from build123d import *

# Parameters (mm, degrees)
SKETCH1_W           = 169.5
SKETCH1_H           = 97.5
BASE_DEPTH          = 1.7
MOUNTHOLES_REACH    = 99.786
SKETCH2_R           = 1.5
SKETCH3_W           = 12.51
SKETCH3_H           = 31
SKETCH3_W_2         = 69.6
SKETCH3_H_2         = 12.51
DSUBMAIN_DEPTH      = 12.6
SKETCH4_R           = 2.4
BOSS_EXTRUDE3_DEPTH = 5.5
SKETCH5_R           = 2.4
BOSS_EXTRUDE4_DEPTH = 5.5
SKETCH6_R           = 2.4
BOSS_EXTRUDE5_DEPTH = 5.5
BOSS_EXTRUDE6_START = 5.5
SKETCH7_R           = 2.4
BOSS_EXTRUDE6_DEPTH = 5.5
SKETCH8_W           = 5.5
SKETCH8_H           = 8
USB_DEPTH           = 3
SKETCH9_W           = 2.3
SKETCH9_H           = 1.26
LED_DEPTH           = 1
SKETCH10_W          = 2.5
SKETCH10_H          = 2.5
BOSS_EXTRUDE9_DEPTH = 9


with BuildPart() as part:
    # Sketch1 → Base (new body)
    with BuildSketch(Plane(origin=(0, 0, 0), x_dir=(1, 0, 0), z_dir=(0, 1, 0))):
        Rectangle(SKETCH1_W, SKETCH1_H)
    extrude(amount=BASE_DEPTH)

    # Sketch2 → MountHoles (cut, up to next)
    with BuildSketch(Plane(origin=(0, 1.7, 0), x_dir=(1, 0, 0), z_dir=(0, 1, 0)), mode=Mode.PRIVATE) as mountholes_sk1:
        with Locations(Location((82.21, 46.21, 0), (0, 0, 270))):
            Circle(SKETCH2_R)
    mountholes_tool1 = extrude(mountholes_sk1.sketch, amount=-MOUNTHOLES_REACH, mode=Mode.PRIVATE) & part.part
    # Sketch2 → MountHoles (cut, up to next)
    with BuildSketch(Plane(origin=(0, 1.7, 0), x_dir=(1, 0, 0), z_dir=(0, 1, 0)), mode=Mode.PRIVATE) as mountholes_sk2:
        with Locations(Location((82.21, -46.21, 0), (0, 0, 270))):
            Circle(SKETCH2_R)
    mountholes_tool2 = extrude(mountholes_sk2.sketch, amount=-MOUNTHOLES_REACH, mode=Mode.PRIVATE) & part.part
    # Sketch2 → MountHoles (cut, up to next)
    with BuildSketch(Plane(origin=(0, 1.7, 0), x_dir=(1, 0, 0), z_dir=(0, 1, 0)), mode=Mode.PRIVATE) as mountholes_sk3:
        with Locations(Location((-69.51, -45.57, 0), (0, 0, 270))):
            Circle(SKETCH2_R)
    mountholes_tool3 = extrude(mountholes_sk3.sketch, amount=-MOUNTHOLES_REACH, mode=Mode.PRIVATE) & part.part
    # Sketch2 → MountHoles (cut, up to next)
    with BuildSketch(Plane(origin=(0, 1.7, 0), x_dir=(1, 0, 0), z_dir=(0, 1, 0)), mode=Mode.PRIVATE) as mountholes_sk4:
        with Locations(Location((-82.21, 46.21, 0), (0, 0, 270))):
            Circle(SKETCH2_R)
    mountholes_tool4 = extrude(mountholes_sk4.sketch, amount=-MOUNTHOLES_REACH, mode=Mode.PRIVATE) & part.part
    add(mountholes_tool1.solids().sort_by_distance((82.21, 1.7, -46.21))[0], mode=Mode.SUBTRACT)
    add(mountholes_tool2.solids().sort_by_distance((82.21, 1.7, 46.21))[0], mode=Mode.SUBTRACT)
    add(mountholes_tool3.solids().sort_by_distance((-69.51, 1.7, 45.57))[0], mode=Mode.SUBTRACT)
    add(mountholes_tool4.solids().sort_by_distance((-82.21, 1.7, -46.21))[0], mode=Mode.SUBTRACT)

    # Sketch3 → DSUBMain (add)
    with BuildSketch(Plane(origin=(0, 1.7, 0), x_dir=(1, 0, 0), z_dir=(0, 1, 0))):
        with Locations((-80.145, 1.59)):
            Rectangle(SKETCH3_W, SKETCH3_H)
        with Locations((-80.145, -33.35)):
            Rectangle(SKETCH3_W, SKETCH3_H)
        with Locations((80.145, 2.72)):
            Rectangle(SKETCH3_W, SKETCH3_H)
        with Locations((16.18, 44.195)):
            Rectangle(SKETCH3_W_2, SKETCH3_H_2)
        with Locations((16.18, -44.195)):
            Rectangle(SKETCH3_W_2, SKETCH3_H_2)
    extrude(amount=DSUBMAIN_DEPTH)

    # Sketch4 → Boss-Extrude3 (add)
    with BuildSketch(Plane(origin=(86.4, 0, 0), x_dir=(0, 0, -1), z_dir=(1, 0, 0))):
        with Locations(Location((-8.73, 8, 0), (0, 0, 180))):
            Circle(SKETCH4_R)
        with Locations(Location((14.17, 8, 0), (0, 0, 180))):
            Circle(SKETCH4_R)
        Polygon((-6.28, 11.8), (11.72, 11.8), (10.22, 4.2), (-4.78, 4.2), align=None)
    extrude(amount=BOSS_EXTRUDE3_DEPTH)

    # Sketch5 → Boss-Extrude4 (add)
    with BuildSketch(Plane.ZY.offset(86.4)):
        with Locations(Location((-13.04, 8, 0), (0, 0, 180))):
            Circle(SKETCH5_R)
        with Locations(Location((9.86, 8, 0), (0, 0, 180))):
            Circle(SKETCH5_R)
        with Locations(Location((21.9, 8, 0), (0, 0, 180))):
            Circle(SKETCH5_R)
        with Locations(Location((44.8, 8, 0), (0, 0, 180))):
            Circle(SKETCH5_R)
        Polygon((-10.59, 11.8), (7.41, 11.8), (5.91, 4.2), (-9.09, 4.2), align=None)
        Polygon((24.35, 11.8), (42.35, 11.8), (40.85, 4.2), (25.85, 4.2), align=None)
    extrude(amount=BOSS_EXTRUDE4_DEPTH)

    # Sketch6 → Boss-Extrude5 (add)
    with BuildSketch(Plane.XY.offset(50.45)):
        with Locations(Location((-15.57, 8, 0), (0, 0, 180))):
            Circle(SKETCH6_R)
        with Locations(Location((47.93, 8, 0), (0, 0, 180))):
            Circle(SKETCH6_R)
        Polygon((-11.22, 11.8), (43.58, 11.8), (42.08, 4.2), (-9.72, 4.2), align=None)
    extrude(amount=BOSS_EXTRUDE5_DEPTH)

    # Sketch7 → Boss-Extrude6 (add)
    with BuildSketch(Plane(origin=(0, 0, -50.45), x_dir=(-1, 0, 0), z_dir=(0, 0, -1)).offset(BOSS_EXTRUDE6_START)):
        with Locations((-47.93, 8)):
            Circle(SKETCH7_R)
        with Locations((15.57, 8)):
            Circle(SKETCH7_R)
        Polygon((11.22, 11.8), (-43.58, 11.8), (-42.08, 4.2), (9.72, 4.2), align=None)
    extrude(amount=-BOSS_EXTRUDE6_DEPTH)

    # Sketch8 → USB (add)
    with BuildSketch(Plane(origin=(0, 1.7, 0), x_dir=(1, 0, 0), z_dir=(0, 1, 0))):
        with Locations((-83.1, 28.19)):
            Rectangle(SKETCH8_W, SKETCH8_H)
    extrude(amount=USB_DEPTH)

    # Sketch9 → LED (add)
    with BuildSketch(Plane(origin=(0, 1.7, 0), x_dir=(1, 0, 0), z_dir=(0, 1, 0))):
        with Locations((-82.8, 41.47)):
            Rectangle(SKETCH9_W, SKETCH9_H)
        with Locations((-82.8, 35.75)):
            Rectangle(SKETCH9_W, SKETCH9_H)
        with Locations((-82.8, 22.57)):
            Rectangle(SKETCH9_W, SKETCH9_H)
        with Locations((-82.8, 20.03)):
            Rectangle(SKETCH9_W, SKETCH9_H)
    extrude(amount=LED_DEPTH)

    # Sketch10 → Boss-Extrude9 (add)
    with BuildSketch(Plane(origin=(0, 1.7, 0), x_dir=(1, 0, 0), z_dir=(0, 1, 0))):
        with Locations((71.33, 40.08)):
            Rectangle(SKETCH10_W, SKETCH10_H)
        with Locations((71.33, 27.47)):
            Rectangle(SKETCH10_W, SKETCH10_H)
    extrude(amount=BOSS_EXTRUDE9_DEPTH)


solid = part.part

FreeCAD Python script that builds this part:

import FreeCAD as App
import Part
import Sketcher
Q = App.Units.Quantity

doc = App.newDocument("Part")
body = doc.addObject("PartDesign::Body", "Body")

sketch1 = body.newObject("Sketcher::SketchObject", "Sketch")
sketch1.AttachmentSupport = (doc.getObject("XZ_Plane"), [""])
sketch1.MapMode = "FlatFace"
sketch1.addGeometry(Part.LineSegment(App.Vector(-85, -49, 0), App.Vector(-85, 49, 0)), False)
sketch1.addGeometry(Part.LineSegment(App.Vector(-85, 49, 0), App.Vector(85, 49, 0)), False)
sketch1.addGeometry(Part.LineSegment(App.Vector(85, 49, 0), App.Vector(85, -49, 0)), False)
sketch1.addGeometry(Part.LineSegment(App.Vector(85, -49, 0), App.Vector(-85, -49, 0)), False)
sketch1.addConstraint(Sketcher.Constraint("Coincident", 0, 2, 1, 1))
sketch1.addConstraint(Sketcher.Constraint("Coincident", 1, 2, 2, 1))
sketch1.addConstraint(Sketcher.Constraint("Coincident", 2, 2, 3, 1))
sketch1.addConstraint(Sketcher.Constraint("Coincident", 3, 2, 0, 1))
sketch1.addConstraint(Sketcher.Constraint("Vertical", 0))
sketch1.addConstraint(Sketcher.Constraint("Horizontal", 1))
sketch1.addConstraint(Sketcher.Constraint("Vertical", 2))
sketch1.addConstraint(Sketcher.Constraint("Horizontal", 3))
sketch1.addConstraint(Sketcher.Constraint("Symmetric", 0, 2, 2, 2, -1, 1))
sketch1.addConstraint(Sketcher.Constraint("DistanceX", 1, 1, 1, 2, Q("169.5 mm")))
sketch1.addConstraint(Sketcher.Constraint("DistanceY", 0, 1, 0, 2, Q("97.5 mm")))
pad1 = body.newObject("PartDesign::Pad", "Pad")
pad1.Profile = sketch1
pad1.Length = 1.7
pad1.Reversed = True

sketch2 = body.newObject("Sketcher::SketchObject", "Sketch001")
sketch2.AttachmentSupport = (doc.getObject("XZ_Plane"), [""])
sketch2.MapMode = "FlatFace"
sketch2.AttachmentOffset = App.Placement(App.Vector(0, 0, -1.7), App.Rotation())
sketch2.addGeometry(Part.Circle(App.Vector(82.2, -46.2, 0), App.Vector(0, 0, 1), 1.5), False)
sketch2.addConstraint(Sketcher.Constraint("Diameter", 0, Q("3 mm")))
sketch2.addConstraint(Sketcher.Constraint("DistanceX", -1, 1, 0, 3, Q("82.21 mm")))
sketch2.addConstraint(Sketcher.Constraint("DistanceY", 0, 3, -1, 1, Q("46.21 mm")))
pocket1 = body.newObject("PartDesign::Pocket", "Pocket")
pocket1.Profile = sketch2
pocket1.Type = "UpToFirst"
pocket1.Reversed = True

sketch3 = body.newObject("Sketcher::SketchObject", "Sketch002")
sketch3.AttachmentSupport = (doc.getObject("XZ_Plane"), [""])
sketch3.MapMode = "FlatFace"
sketch3.AttachmentOffset = App.Placement(App.Vector(0, 0, -1.7), App.Rotation())
sketch3.addGeometry(Part.Circle(App.Vector(82.2, 46.2, 0), App.Vector(0, 0, 1), 1.5), False)
sketch3.addConstraint(Sketcher.Constraint("Diameter", 0, Q("3 mm")))
sketch3.addConstraint(Sketcher.Constraint("DistanceX", -1, 1, 0, 3, Q("82.21 mm")))
sketch3.addConstraint(Sketcher.Constraint("DistanceY", -1, 1, 0, 3, Q("46.21 mm")))
pocket2 = body.newObject("PartDesign::Pocket", "Pocket001")
pocket2.Profile = sketch3
pocket2.Type = "UpToFirst"
pocket2.Reversed = True

sketch4 = body.newObject("Sketcher::SketchObject", "Sketch003")
sketch4.AttachmentSupport = (doc.getObject("XZ_Plane"), [""])
sketch4.MapMode = "FlatFace"
sketch4.AttachmentOffset = App.Placement(App.Vector(0, 0, -1.7), App.Rotation())
sketch4.addGeometry(Part.Circle(App.Vector(-69.5, 45.6, 0), App.Vector(0, 0, 1), 1.5), False)
sketch4.addConstraint(Sketcher.Constraint("Diameter", 0, Q("3 mm")))
sketch4.addConstraint(Sketcher.Constraint("DistanceX", 0, 3, -1, 1, Q("69.51 mm")))
sketch4.addConstraint(Sketcher.Constraint("DistanceY", -1, 1, 0, 3, Q("45.57 mm")))
pocket3 = body.newObject("PartDesign::Pocket", "Pocket002")
pocket3.Profile = sketch4
pocket3.Type = "UpToFirst"
pocket3.Reversed = True

sketch5 = body.newObject("Sketcher::SketchObject", "Sketch004")
sketch5.AttachmentSupport = (doc.getObject("XZ_Plane"), [""])
sketch5.MapMode = "FlatFace"
sketch5.AttachmentOffset = App.Placement(App.Vector(0, 0, -1.7), App.Rotation())
sketch5.addGeometry(Part.Circle(App.Vector(-82.2, -46.2, 0), App.Vector(0, 0, 1), 1.5), False)
sketch5.addConstraint(Sketcher.Constraint("Diameter", 0, Q("3 mm")))
sketch5.addConstraint(Sketcher.Constraint("DistanceX", 0, 3, -1, 1, Q("82.21 mm")))
sketch5.addConstraint(Sketcher.Constraint("DistanceY", 0, 3, -1, 1, Q("46.21 mm")))
pocket4 = body.newObject("PartDesign::Pocket", "Pocket003")
pocket4.Profile = sketch5
pocket4.Type = "UpToFirst"
pocket4.Reversed = True

sketch6 = body.newObject("Sketcher::SketchObject", "Sketch005")
sketch6.AttachmentSupport = (doc.getObject("XZ_Plane"), [""])
sketch6.MapMode = "FlatFace"
sketch6.AttachmentOffset = App.Placement(App.Vector(0, 0, -1.7), App.Rotation())
sketch6.addGeometry(Part.LineSegment(App.Vector(-86, -17, 0), App.Vector(-86, 14, 0)), False)
sketch6.addGeometry(Part.LineSegment(App.Vector(-86, 14, 0), App.Vector(-74, 14, 0)), False)
sketch6.addGeometry(Part.LineSegment(App.Vector(-74, 14, 0), App.Vector(-74, -17, 0)), False)
sketch6.addGeometry(Part.LineSegment(App.Vector(-74, -17, 0), App.Vector(-86, -17, 0)), False)
sketch6.addGeometry(Part.LineSegment(App.Vector(-86, 18, 0), App.Vector(-86, 49, 0)), False)
sketch6.addGeometry(Part.LineSegment(App.Vector(-86, 49, 0), App.Vector(-74, 49, 0)), False)
sketch6.addGeometry(Part.LineSegment(App.Vector(-74, 49, 0), App.Vector(-74, 18, 0)), False)
sketch6.addGeometry(Part.LineSegment(App.Vector(-74, 18, 0), App.Vector(-86, 18, 0)), False)
sketch6.addGeometry(Part.LineSegment(App.Vector(74, -18, 0), App.Vector(74, 13, 0)), False)
sketch6.addGeometry(Part.LineSegment(App.Vector(74, 13, 0), App.Vector(86, 13, 0)), False)
sketch6.addGeometry(Part.LineSegment(App.Vector(86, 13, 0), App.Vector(86, -18, 0)), False)
sketch6.addGeometry(Part.LineSegment(App.Vector(86, -18, 0), App.Vector(74, -18, 0)), False)
sketch6.addGeometry(Part.LineSegment(App.Vector(-19, -50, 0), App.Vector(-19, -38, 0)), False)
sketch6.addGeometry(Part.LineSegment(App.Vector(-19, -38, 0), App.Vector(51, -38, 0)), False)
sketch6.addGeometry(Part.LineSegment(App.Vector(51, -38, 0), App.Vector(51, -50, 0)), False)
sketch6.addGeometry(Part.LineSegment(App.Vector(51, -50, 0), App.Vector(-19, -50, 0)), False)
sketch6.addGeometry(Part.LineSegment(App.Vector(-19, 38, 0), App.Vector(-19, 50, 0)), False)
sketch6.addGeometry(Part.LineSegment(App.Vector(-19, 50, 0), App.Vector(51, 50, 0)), False)
sketch6.addGeometry(Part.LineSegment(App.Vector(51, 50, 0), App.Vector(51, 38, 0)), False)
sketch6.addGeometry(Part.LineSegment(App.Vector(51, 38, 0), App.Vector(-19, 38, 0)), False)
sketch6.addConstraint(Sketcher.Constraint("Coincident", 0, 2, 1, 1))
sketch6.addConstraint(Sketcher.Constraint("Coincident", 1, 2, 2, 1))
sketch6.addConstraint(Sketcher.Constraint("Coincident", 2, 2, 3, 1))
sketch6.addConstraint(Sketcher.Constraint("Coincident", 3, 2, 0, 1))
sketch6.addConstraint(Sketcher.Constraint("Coincident", 4, 2, 5, 1))
sketch6.addConstraint(Sketcher.Constraint("Coincident", 5, 2, 6, 1))
sketch6.addConstraint(Sketcher.Constraint("Coincident", 6, 2, 7, 1))
sketch6.addConstraint(Sketcher.Constraint("Coincident", 7, 2, 4, 1))
sketch6.addConstraint(Sketcher.Constraint("Coincident", 8, 2, 9, 1))
sketch6.addConstraint(Sketcher.Constraint("Coincident", 9, 2, 10, 1))
sketch6.addConstraint(Sketcher.Constraint("Coincident", 10, 2, 11, 1))
sketch6.addConstraint(Sketcher.Constraint("Coincident", 11, 2, 8, 1))
sketch6.addConstraint(Sketcher.Constraint("Coincident", 12, 2, 13, 1))
sketch6.addConstraint(Sketcher.Constraint("Coincident", 13, 2, 14, 1))
sketch6.addConstraint(Sketcher.Constraint("Coincident", 14, 2, 15, 1))
sketch6.addConstraint(Sketcher.Constraint("Coincident", 15, 2, 12, 1))
sketch6.addConstraint(Sketcher.Constraint("Coincident", 16, 2, 17, 1))
sketch6.addConstraint(Sketcher.Constraint("Coincident", 17, 2, 18, 1))
sketch6.addConstraint(Sketcher.Constraint("Coincident", 18, 2, 19, 1))
sketch6.addConstraint(Sketcher.Constraint("Coincident", 19, 2, 16, 1))
sketch6.addConstraint(Sketcher.Constraint("Vertical", 0))
sketch6.addConstraint(Sketcher.Constraint("Horizontal", 1))
sketch6.addConstraint(Sketcher.Constraint("Vertical", 2))
sketch6.addConstraint(Sketcher.Constraint("Horizontal", 3))
sketch6.addConstraint(Sketcher.Constraint("Vertical", 4))
sketch6.addConstraint(Sketcher.Constraint("Horizontal", 5))
sketch6.addConstraint(Sketcher.Constraint("Vertical", 6))
sketch6.addConstraint(Sketcher.Constraint("Horizontal", 7))
sketch6.addConstraint(Sketcher.Constraint("Vertical", 8))
sketch6.addConstraint(Sketcher.Constraint("Horizontal", 9))
sketch6.addConstraint(Sketcher.Constraint("Vertical", 10))
sketch6.addConstraint(Sketcher.Constraint("Horizontal", 11))
sketch6.addConstraint(Sketcher.Constraint("Vertical", 12))
sketch6.addConstraint(Sketcher.Constraint("Horizontal", 13))
sketch6.addConstraint(Sketcher.Constraint("Vertical", 14))
sketch6.addConstraint(Sketcher.Constraint("Horizontal", 15))
sketch6.addConstraint(Sketcher.Constraint("Vertical", 16))
sketch6.addConstraint(Sketcher.Constraint("Horizontal", 17))
sketch6.addConstraint(Sketcher.Constraint("Vertical", 18))
sketch6.addConstraint(Sketcher.Constraint("Horizontal", 19))
sketch6.addConstraint(Sketcher.Constraint("Symmetric", 15, 2, 16, 2, -1))
sketch6.addConstraint(Sketcher.Constraint("Symmetric", 13, 2, 18, 2, -1))
sketch6.addConstraint(Sketcher.Constraint("Vertical", 3, 2, 4, 2))
sketch6.addConstraint(Sketcher.Constraint("Vertical", 2, 2, 5, 2))
sketch6.addConstraint(Sketcher.Constraint("Equal", 7, 9))
sketch6.addConstraint(Sketcher.Constraint("Equal", 2, 4))
sketch6.addConstraint(Sketcher.Constraint("Equal", 6, 8))
sketch6.addConstraint(Sketcher.Constraint("Equal", 11, 12))
sketch6.addConstraint(Sketcher.Constraint("DistanceY", 0, 1, 0, 2, Q("31 mm")))
sketch6.addConstraint(Sketcher.Constraint("DistanceX", 13, 1, 13, 2, Q("69.6 mm")))
sketch6.addConstraint(Sketcher.Constraint("DistanceX", 1, 1, 1, 2, Q("12.51 mm")))
sketch6.addConstraint(Sketcher.Constraint("DistanceX", 0, 2, -1, 1, Q("86.4 mm")))
sketch6.addConstraint(Sketcher.Constraint("DistanceX", -1, 1, 9, 2, Q("86.4 mm")))
sketch6.addConstraint(Sketcher.Constraint("DistanceY", 5, 2, 16, 2, Q("1.6 mm")))
sketch6.addConstraint(Sketcher.Constraint("DistanceY", -1, 1, 0, 2, Q("13.91 mm")))
sketch6.addConstraint(Sketcher.Constraint("DistanceY", -1, 1, 4, 2, Q("48.85 mm")))
sketch6.addConstraint(Sketcher.Constraint("DistanceY", -1, 1, 8, 2, Q("12.78 mm")))
sketch6.addConstraint(Sketcher.Constraint("DistanceX", 12, 2, -1, 1, Q("18.62 mm")))
pad2 = body.newObject("PartDesign::Pad", "Pad001")
pad2.Profile = sketch6
pad2.Length = 12.6
pad2.Reversed = True

sketch7 = body.newObject("Sketcher::SketchObject", "Sketch006")
sketch7.AttachmentSupport = (doc.getObject("YZ_Plane"), [""])
sketch7.MapMode = "FlatFace"
sketch7.AttachmentOffset = App.Placement(App.Vector(0, 0, 86.4), App.Rotation())
sketch7.addGeometry(Part.Circle(App.Vector(8, 8.7, 0), App.Vector(0, 0, 1), 2.4), False)
sketch7.addGeometry(Part.Circle(App.Vector(8, -14.2, 0), App.Vector(0, 0, 1), 2.4), False)
sketch7.addGeometry(Part.LineSegment(App.Vector(11.8, -11.7, 0), App.Vector(11.8, 6.3, 0)), False)
sketch7.addGeometry(Part.LineSegment(App.Vector(11.8, 6.3, 0), App.Vector(4.2, 4.8, 0)), False)
sketch7.addGeometry(Part.LineSegment(App.Vector(4.2, 4.8, 0), App.Vector(4.2, -10.2, 0)), False)
sketch7.addGeometry(Part.LineSegment(App.Vector(4.2, -10.2, 0), App.Vector(11.8, -11.7, 0)), False)
sketch7.addConstraint(Sketcher.Constraint("Coincident", 2, 2, 3, 1))
sketch7.addConstraint(Sketcher.Constraint("Coincident", 3, 2, 4, 1))
sketch7.addConstraint(Sketcher.Constraint("Coincident", 4, 2, 5, 1))
sketch7.addConstraint(Sketcher.Constraint("Coincident", 5, 2, 2, 1))
sketch7.addConstraint(Sketcher.Constraint("Vertical", 2))
sketch7.addConstraint(Sketcher.Constraint("Vertical", 4))
sketch7.addConstraint(Sketcher.Constraint("Equal", 0, 1))
sketch7.addConstraint(Sketcher.Constraint("Vertical", 0, 3, 1, 3))
sketch7.addConstraint(Sketcher.Constraint("Equal", 3, 5))
sketch7.addConstraint(Sketcher.Constraint("Diameter", 0, Q("4.8 mm")))
sketch7.addConstraint(Sketcher.Constraint("DistanceY", 2, 1, 2, 2, Q("18 mm")))
sketch7.addConstraint(Sketcher.Constraint("DistanceY", 4, 2, 4, 1, Q("15 mm")))
sketch7.addConstraint(Sketcher.Constraint("DistanceX", -1, 1, 0, 3, Q("8 mm")))
sketch7.addConstraint(Sketcher.Constraint("DistanceX", -1, 1, 2, 2, Q("11.8 mm")))
sketch7.addConstraint(Sketcher.Constraint("DistanceX", -1, 1, 3, 2, Q("4.2 mm")))
sketch7.addConstraint(Sketcher.Constraint("DistanceY", 1, 3, 0, 3, Q("22.9 mm")))
sketch7.addConstraint(Sketcher.Constraint("DistanceY", -1, 1, 0, 3, Q("8.73 mm")))
sketch7.addConstraint(Sketcher.Constraint("DistanceY", -1, 1, 2, 2, Q("6.28 mm")))
pad3 = body.newObject("PartDesign::Pad", "Pad002")
pad3.Profile = sketch7
pad3.Length = 5.5

sketch8 = body.newObject("Sketcher::SketchObject", "Sketch007")
sketch8.AttachmentSupport = (doc.getObject("YZ_Plane"), [""])
sketch8.MapMode = "FlatFace"
sketch8.AttachmentOffset = App.Placement(App.Vector(0, 0, -86.4), App.Rotation())
sketch8.addGeometry(Part.Circle(App.Vector(8, -13, 0), App.Vector(0, 0, 1), 2.4), False)
sketch8.addGeometry(Part.Circle(App.Vector(8, 9.9, 0), App.Vector(0, 0, 1), 2.4), False)
sketch8.addGeometry(Part.Circle(App.Vector(8, 21.9, 0), App.Vector(0, 0, 1), 2.4), False)
sketch8.addGeometry(Part.Circle(App.Vector(8, 44.8, 0), App.Vector(0, 0, 1), 2.4), False)
sketch8.addGeometry(Part.LineSegment(App.Vector(11.8, 7.4, 0), App.Vector(11.8, -10.6, 0)), False)
sketch8.addGeometry(Part.LineSegment(App.Vector(11.8, -10.6, 0), App.Vector(4.2, -9.1, 0)), False)
sketch8.addGeometry(Part.LineSegment(App.Vector(4.2, -9.1, 0), App.Vector(4.2, 5.9, 0)), False)
sketch8.addGeometry(Part.LineSegment(App.Vector(4.2, 5.9, 0), App.Vector(11.8, 7.4, 0)), False)
sketch8.addGeometry(Part.LineSegment(App.Vector(11.8, 42.4, 0), App.Vector(11.8, 24.4, 0)), False)
sketch8.addGeometry(Part.LineSegment(App.Vector(11.8, 24.4, 0), App.Vector(4.2, 25.9, 0)), False)
sketch8.addGeometry(Part.LineSegment(App.Vector(4.2, 25.9, 0), App.Vector(4.2, 40.9, 0)), False)
sketch8.addGeometry(Part.LineSegment(App.Vector(4.2, 40.9, 0), App.Vector(11.8, 42.4, 0)), False)
sketch8.addConstraint(Sketcher.Constraint("Coincident", 4, 2, 5, 1))
sketch8.addConstraint(Sketcher.Constraint("Coincident", 5, 2, 6, 1))
sketch8.addConstraint(Sketcher.Constraint("Coincident", 6, 2, 7, 1))
sketch8.addConstraint(Sketcher.Constraint("Coincident", 7, 2, 4, 1))
sketch8.addConstraint(Sketcher.Constraint("Coincident", 8, 2, 9, 1))
sketch8.addConstraint(Sketcher.Constraint("Coincident", 9, 2, 10, 1))
sketch8.addConstraint(Sketcher.Constraint("Coincident", 10, 2, 11, 1))
sketch8.addConstraint(Sketcher.Constraint("Coincident", 11, 2, 8, 1))
sketch8.addConstraint(Sketcher.Constraint("Vertical", 4))
sketch8.addConstraint(Sketcher.Constraint("Vertical", 6))
sketch8.addConstraint(Sketcher.Constraint("Vertical", 8))
sketch8.addConstraint(Sketcher.Constraint("Vertical", 10))
sketch8.addConstraint(Sketcher.Constraint("Equal", 0, 1))
sketch8.addConstraint(Sketcher.Constraint("Equal", 1, 2))
sketch8.addConstraint(Sketcher.Constraint("Equal", 2, 3))
sketch8.addConstraint(Sketcher.Constraint("Parallel", 5, 9))
sketch8.addConstraint(Sketcher.Constraint("Parallel", 7, 11))
sketch8.addConstraint(Sketcher.Constraint("Vertical", 0, 3, 1, 3))
sketch8.addConstraint(Sketcher.Constraint("Vertical", 1, 3, 2, 3))
sketch8.addConstraint(Sketcher.Constraint("Vertical", 2, 3, 3, 3))
sketch8.addConstraint(Sketcher.Constraint("Vertical", 7, 2, 8, 2))
sketch8.addConstraint(Sketcher.Constraint("Vertical", 6, 2, 9, 2))
sketch8.addConstraint(Sketcher.Constraint("Equal", 4, 8))
sketch8.addConstraint(Sketcher.Constraint("Equal", 5, 7))
sketch8.addConstraint(Sketcher.Constraint("Diameter", 0, Q("4.8 mm")))
sketch8.addConstraint(Sketcher.Constraint("DistanceY", 4, 2, 4, 1, Q("18 mm")))
sketch8.addConstraint(Sketcher.Constraint("DistanceY", 6, 1, 6, 2, Q("15 mm")))
sketch8.addConstraint(Sketcher.Constraint("DistanceX", -1, 1, 0, 3, Q("8 mm")))
sketch8.addConstraint(Sketcher.Constraint("DistanceY", -1, 1, 2, 3, Q("21.9 mm")))
sketch8.addConstraint(Sketcher.Constraint("DistanceY", -1, 1, 3, 3, Q("44.8 mm")))
sketch8.addConstraint(Sketcher.Constraint("DistanceX", -1, 1, 4, 2, Q("11.8 mm")))
sketch8.addConstraint(Sketcher.Constraint("DistanceX", -1, 1, 5, 2, Q("4.2 mm")))
sketch8.addConstraint(Sketcher.Constraint("DistanceY", 0, 3, 1, 3, Q("22.9 mm")))
sketch8.addConstraint(Sketcher.Constraint("DistanceY", 0, 3, -1, 1, Q("13.04 mm")))
sketch8.addConstraint(Sketcher.Constraint("DistanceY", 4, 2, -1, 1, Q("10.59 mm")))
sketch8.addConstraint(Sketcher.Constraint("DistanceY", -1, 1, 8, 2, Q("24.35 mm")))
pad4 = body.newObject("PartDesign::Pad", "Pad003")
pad4.Profile = sketch8
pad4.Length = 5.5
pad4.Reversed = True

sketch9 = body.newObject("Sketcher::SketchObject", "Sketch008")
sketch9.AttachmentSupport = (doc.getObject("XY_Plane"), [""])
sketch9.MapMode = "FlatFace"
sketch9.AttachmentOffset = App.Placement(App.Vector(0, 0, 50.45), App.Rotation())
sketch9.addGeometry(Part.Circle(App.Vector(-15.6, 8, 0), App.Vector(0, 0, 1), 2.4), False)
sketch9.addGeometry(Part.Circle(App.Vector(47.9, 8, 0), App.Vector(0, 0, 1), 2.4), False)
sketch9.addGeometry(Part.LineSegment(App.Vector(43.6, 11.8, 0), App.Vector(-11.2, 11.8, 0)), False)
sketch9.addGeometry(Part.LineSegment(App.Vector(-11.2, 11.8, 0), App.Vector(-9.7, 4.2, 0)), False)
sketch9.addGeometry(Part.LineSegment(App.Vector(-9.7, 4.2, 0), App.Vector(42.1, 4.2, 0)), False)
sketch9.addGeometry(Part.LineSegment(App.Vector(42.1, 4.2, 0), App.Vector(43.6, 11.8, 0)), False)
sketch9.addConstraint(Sketcher.Constraint("Coincident", 2, 2, 3, 1))
sketch9.addConstraint(Sketcher.Constraint("Coincident", 3, 2, 4, 1))
sketch9.addConstraint(Sketcher.Constraint("Coincident", 4, 2, 5, 1))
sketch9.addConstraint(Sketcher.Constraint("Coincident", 5, 2, 2, 1))
sketch9.addConstraint(Sketcher.Constraint("Horizontal", 2))
sketch9.addConstraint(Sketcher.Constraint("Horizontal", 4))
sketch9.addConstraint(Sketcher.Constraint("Equal", 0, 1))
sketch9.addConstraint(Sketcher.Constraint("Horizontal", 0, 3, 1, 3))
sketch9.addConstraint(Sketcher.Constraint("Equal", 3, 5))
sketch9.addConstraint(Sketcher.Constraint("Diameter", 0, Q("4.8 mm")))
sketch9.addConstraint(Sketcher.Constraint("DistanceX", 2, 2, 2, 1, Q("54.8 mm")))
sketch9.addConstraint(Sketcher.Constraint("DistanceX", 4, 1, 4, 2, Q("51.8 mm")))
sketch9.addConstraint(Sketcher.Constraint("DistanceY", -1, 1, 0, 3, Q("8 mm")))
sketch9.addConstraint(Sketcher.Constraint("DistanceY", -1, 1, 2, 2, Q("11.8 mm")))
sketch9.addConstraint(Sketcher.Constraint("DistanceY", -1, 1, 3, 2, Q("4.2 mm")))
sketch9.addConstraint(Sketcher.Constraint("DistanceX", 0, 3, 1, 3, Q("63.5 mm")))
sketch9.addConstraint(Sketcher.Constraint("DistanceX", 0, 3, -1, 1, Q("15.57 mm")))
sketch9.addConstraint(Sketcher.Constraint("DistanceX", 2, 2, -1, 1, Q("11.22 mm")))
pad5 = body.newObject("PartDesign::Pad", "Pad004")
pad5.Profile = sketch9
pad5.Length = 5.5

sketch10 = body.newObject("Sketcher::SketchObject", "Sketch009")
sketch10.AttachmentSupport = (doc.getObject("XY_Plane"), [""])
sketch10.MapMode = "FlatFace"
sketch10.AttachmentOffset = App.Placement(App.Vector(0, 0, -55.95), App.Rotation())
sketch10.addGeometry(Part.Circle(App.Vector(47.9, 8, 0), App.Vector(0, 0, 1), 2.4), False)
sketch10.addGeometry(Part.Circle(App.Vector(-15.6, 8, 0), App.Vector(0, 0, 1), 2.4), False)
sketch10.addGeometry(Part.LineSegment(App.Vector(-11.2, 11.8, 0), App.Vector(43.6, 11.8, 0)), False)
sketch10.addGeometry(Part.LineSegment(App.Vector(43.6, 11.8, 0), App.Vector(42.1, 4.2, 0)), False)
sketch10.addGeometry(Part.LineSegment(App.Vector(42.1, 4.2, 0), App.Vector(-9.7, 4.2, 0)), False)
sketch10.addGeometry(Part.LineSegment(App.Vector(-9.7, 4.2, 0), App.Vector(-11.2, 11.8, 0)), False)
sketch10.addConstraint(Sketcher.Constraint("Coincident", 2, 2, 3, 1))
sketch10.addConstraint(Sketcher.Constraint("Coincident", 3, 2, 4, 1))
sketch10.addConstraint(Sketcher.Constraint("Coincident", 4, 2, 5, 1))
sketch10.addConstraint(Sketcher.Constraint("Coincident", 5, 2, 2, 1))
sketch10.addConstraint(Sketcher.Constraint("Horizontal", 2))
sketch10.addConstraint(Sketcher.Constraint("Horizontal", 4))
sketch10.addConstraint(Sketcher.Constraint("Equal", 0, 1))
sketch10.addConstraint(Sketcher.Constraint("Horizontal", 0, 3, 1, 3))
sketch10.addConstraint(Sketcher.Constraint("Equal", 3, 5))
sketch10.addConstraint(Sketcher.Constraint("Diameter", 0, Q("4.8 mm")))
sketch10.addConstraint(Sketcher.Constraint("DistanceX", 2, 1, 2, 2, Q("54.8 mm")))
sketch10.addConstraint(Sketcher.Constraint("DistanceX", 4, 2, 4, 1, Q("51.8 mm")))
sketch10.addConstraint(Sketcher.Constraint("DistanceY", -1, 1, 0, 3, Q("8 mm")))
sketch10.addConstraint(Sketcher.Constraint("DistanceY", -1, 1, 2, 2, Q("11.8 mm")))
sketch10.addConstraint(Sketcher.Constraint("DistanceY", -1, 1, 3, 2, Q("4.2 mm")))
sketch10.addConstraint(Sketcher.Constraint("DistanceX", 1, 3, 0, 3, Q("63.5 mm")))
sketch10.addConstraint(Sketcher.Constraint("DistanceX", -1, 1, 0, 3, Q("47.93 mm")))
sketch10.addConstraint(Sketcher.Constraint("DistanceX", -1, 1, 2, 2, Q("43.58 mm")))
pad6 = body.newObject("PartDesign::Pad", "Pad005")
pad6.Profile = sketch10
pad6.Length = 5.5

sketch11 = body.newObject("Sketcher::SketchObject", "Sketch010")
sketch11.AttachmentSupport = (doc.getObject("XZ_Plane"), [""])
sketch11.MapMode = "FlatFace"
sketch11.AttachmentOffset = App.Placement(App.Vector(0, 0, -1.7), App.Rotation())
sketch11.addGeometry(Part.LineSegment(App.Vector(-86, -32, 0), App.Vector(-86, -24, 0)), False)
sketch11.addGeometry(Part.LineSegment(App.Vector(-86, -24, 0), App.Vector(-80, -24, 0)), False)
sketch11.addGeometry(Part.LineSegment(App.Vector(-80, -24, 0), App.Vector(-80, -32, 0)), False)
sketch11.addGeometry(Part.LineSegment(App.Vector(-80, -32, 0), App.Vector(-86, -32, 0)), False)
sketch11.addConstraint(Sketcher.Constraint("Coincident", 0, 2, 1, 1))
sketch11.addConstraint(Sketcher.Constraint("Coincident", 1, 2, 2, 1))
sketch11.addConstraint(Sketcher.Constraint("Coincident", 2, 2, 3, 1))
sketch11.addConstraint(Sketcher.Constraint("Coincident", 3, 2, 0, 1))
sketch11.addConstraint(Sketcher.Constraint("Vertical", 0))
sketch11.addConstraint(Sketcher.Constraint("Horizontal", 1))
sketch11.addConstraint(Sketcher.Constraint("Vertical", 2))
sketch11.addConstraint(Sketcher.Constraint("Horizontal", 3))
sketch11.addConstraint(Sketcher.Constraint("DistanceY", 0, 1, 0, 2, Q("8 mm")))
sketch11.addConstraint(Sketcher.Constraint("DistanceX", 1, 1, 1, 2, Q("5.5 mm")))
sketch11.addConstraint(Sketcher.Constraint("DistanceX", 0, 2, -1, 1, Q("85.85 mm")))
sketch11.addConstraint(Sketcher.Constraint("DistanceY", 0, 2, -1, 1, Q("24.19 mm")))
pad7 = body.newObject("PartDesign::Pad", "Pad006")
pad7.Profile = sketch11
pad7.Length = 3
pad7.Reversed = True

sketch12 = body.newObject("Sketcher::SketchObject", "Sketch011")
sketch12.AttachmentSupport = (doc.getObject("XZ_Plane"), [""])
sketch12.MapMode = "FlatFace"
sketch12.AttachmentOffset = App.Placement(App.Vector(0, 0, -1.7), App.Rotation())
sketch12.addGeometry(Part.LineSegment(App.Vector(-84, -42.1, 0), App.Vector(-84, -40.8, 0)), False)
sketch12.addGeometry(Part.LineSegment(App.Vector(-84, -40.8, 0), App.Vector(-81.7, -40.8, 0)), False)
sketch12.addGeometry(Part.LineSegment(App.Vector(-81.7, -40.8, 0), App.Vector(-81.7, -42.1, 0)), False)
sketch12.addGeometry(Part.LineSegment(App.Vector(-81.7, -42.1, 0), App.Vector(-84, -42.1, 0)), False)
sketch12.addGeometry(Part.LineSegment(App.Vector(-84, -36.4, 0), App.Vector(-84, -35.1, 0)), False)
sketch12.addGeometry(Part.LineSegment(App.Vector(-84, -35.1, 0), App.Vector(-81.7, -35.1, 0)), False)
sketch12.addGeometry(Part.LineSegment(App.Vector(-81.7, -35.1, 0), App.Vector(-81.7, -36.4, 0)), False)
sketch12.addGeometry(Part.LineSegment(App.Vector(-81.7, -36.4, 0), App.Vector(-84, -36.4, 0)), False)
sketch12.addGeometry(Part.LineSegment(App.Vector(-84, -23.2, 0), App.Vector(-84, -21.9, 0)), False)
sketch12.addGeometry(Part.LineSegment(App.Vector(-84, -21.9, 0), App.Vector(-81.7, -21.9, 0)), False)
sketch12.addGeometry(Part.LineSegment(App.Vector(-81.7, -21.9, 0), App.Vector(-81.7, -23.2, 0)), False)
sketch12.addGeometry(Part.LineSegment(App.Vector(-81.7, -23.2, 0), App.Vector(-84, -23.2, 0)), False)
sketch12.addGeometry(Part.LineSegment(App.Vector(-84, -20.7, 0), App.Vector(-84, -19.4, 0)), False)
sketch12.addGeometry(Part.LineSegment(App.Vector(-84, -19.4, 0), App.Vector(-81.7, -19.4, 0)), False)
sketch12.addGeometry(Part.LineSegment(App.Vector(-81.7, -19.4, 0), App.Vector(-81.7, -20.7, 0)), False)
sketch12.addGeometry(Part.LineSegment(App.Vector(-81.7, -20.7, 0), App.Vector(-84, -20.7, 0)), False)
sketch12.addConstraint(Sketcher.Constraint("Coincident", 0, 2, 1, 1))
sketch12.addConstraint(Sketcher.Constraint("Coincident", 1, 2, 2, 1))
sketch12.addConstraint(Sketcher.Constraint("Coincident", 2, 2, 3, 1))
sketch12.addConstraint(Sketcher.Constraint("Coincident", 3, 2, 0, 1))
sketch12.addConstraint(Sketcher.Constraint("Coincident", 4, 2, 5, 1))
sketch12.addConstraint(Sketcher.Constraint("Coincident", 5, 2, 6, 1))
sketch12.addConstraint(Sketcher.Constraint("Coincident", 6, 2, 7, 1))
sketch12.addConstraint(Sketcher.Constraint("Coincident", 7, 2, 4, 1))
sketch12.addConstraint(Sketcher.Constraint("Coincident", 8, 2, 9, 1))
sketch12.addConstraint(Sketcher.Constraint("Coincident", 9, 2, 10, 1))
sketch12.addConstraint(Sketcher.Constraint("Coincident", 10, 2, 11, 1))
sketch12.addConstraint(Sketcher.Constraint("Coincident", 11, 2, 8, 1))
sketch12.addConstraint(Sketcher.Constraint("Coincident", 12, 2, 13, 1))
sketch12.addConstraint(Sketcher.Constraint("Coincident", 13, 2, 14, 1))
sketch12.addConstraint(Sketcher.Constraint("Coincident", 14, 2, 15, 1))
sketch12.addConstraint(Sketcher.Constraint("Coincident", 15, 2, 12, 1))
sketch12.addConstraint(Sketcher.Constraint("Vertical", 0))
sketch12.addConstraint(Sketcher.Constraint("Horizontal", 1))
sketch12.addConstraint(Sketcher.Constraint("Vertical", 2))
sketch12.addConstraint(Sketcher.Constraint("Horizontal", 3))
sketch12.addConstraint(Sketcher.Constraint("Vertical", 4))
sketch12.addConstraint(Sketcher.Constraint("Horizontal", 5))
sketch12.addConstraint(Sketcher.Constraint("Vertical", 6))
sketch12.addConstraint(Sketcher.Constraint("Horizontal", 7))
sketch12.addConstraint(Sketcher.Constraint("Vertical", 8))
sketch12.addConstraint(Sketcher.Constraint("Horizontal", 9))
sketch12.addConstraint(Sketcher.Constraint("Vertical", 10))
sketch12.addConstraint(Sketcher.Constraint("Horizontal", 11))
sketch12.addConstraint(Sketcher.Constraint("Vertical", 12))
sketch12.addConstraint(Sketcher.Constraint("Horizontal", 13))
sketch12.addConstraint(Sketcher.Constraint("Vertical", 14))
sketch12.addConstraint(Sketcher.Constraint("Horizontal", 15))
sketch12.addConstraint(Sketcher.Constraint("Vertical", 3, 2, 4, 2))
sketch12.addConstraint(Sketcher.Constraint("Vertical", 2, 2, 5, 2))
sketch12.addConstraint(Sketcher.Constraint("Vertical", 7, 2, 8, 2))
sketch12.addConstraint(Sketcher.Constraint("Vertical", 6, 2, 9, 2))
sketch12.addConstraint(Sketcher.Constraint("Vertical", 11, 2, 12, 2))
sketch12.addConstraint(Sketcher.Constraint("Vertical", 10, 2, 13, 2))
sketch12.addConstraint(Sketcher.Constraint("Equal", 2, 4))
sketch12.addConstraint(Sketcher.Constraint("Equal", 6, 8))
sketch12.addConstraint(Sketcher.Constraint("Equal", 10, 12))
sketch12.addConstraint(Sketcher.Constraint("DistanceX", 1, 1, 1, 2, Q("2.3 mm")))
sketch12.addConstraint(Sketcher.Constraint("DistanceY", 0, 1, 0, 2, Q("1.26 mm")))
sketch12.addConstraint(Sketcher.Constraint("DistanceY", 2, 2, -1, 1, Q("42.1 mm")))
sketch12.addConstraint(Sketcher.Constraint("DistanceY", 10, 2, -1, 1, Q("23.2 mm")))
sketch12.addConstraint(Sketcher.Constraint("DistanceY", 12, 2, -1, 1, Q("19.4 mm")))
sketch12.addConstraint(Sketcher.Constraint("DistanceX", 0, 2, -1, 1, Q("83.95 mm")))
sketch12.addConstraint(Sketcher.Constraint("DistanceY", 4, 2, -1, 1, Q("35.12 mm")))
pad8 = body.newObject("PartDesign::Pad", "Pad007")
pad8.Profile = sketch12
pad8.Length = 1
pad8.Reversed = True

sketch13 = body.newObject("Sketcher::SketchObject", "Sketch012")
sketch13.AttachmentSupport = (doc.getObject("XZ_Plane"), [""])
sketch13.MapMode = "FlatFace"
sketch13.AttachmentOffset = App.Placement(App.Vector(0, 0, -1.7), App.Rotation())
sketch13.addGeometry(Part.LineSegment(App.Vector(70.1, -41.3, 0), App.Vector(70.1, -38.8, 0)), False)
sketch13.addGeometry(Part.LineSegment(App.Vector(70.1, -38.8, 0), App.Vector(72.6, -38.8, 0)), False)
sketch13.addGeometry(Part.LineSegment(App.Vector(72.6, -38.8, 0), App.Vector(72.6, -41.3, 0)), False)
sketch13.addGeometry(Part.LineSegment(App.Vector(72.6, -41.3, 0), App.Vector(70.1, -41.3, 0)), False)
sketch13.addGeometry(Part.LineSegment(App.Vector(70.1, -28.7, 0), App.Vector(70.1, -26.2, 0)), False)
sketch13.addGeometry(Part.LineSegment(App.Vector(70.1, -26.2, 0), App.Vector(72.6, -26.2, 0)), False)
sketch13.addGeometry(Part.LineSegment(App.Vector(72.6, -26.2, 0), App.Vector(72.6, -28.7, 0)), False)
sketch13.addGeometry(Part.LineSegment(App.Vector(72.6, -28.7, 0), App.Vector(70.1, -28.7, 0)), False)
sketch13.addConstraint(Sketcher.Constraint("Coincident", 0, 2, 1, 1))
sketch13.addConstraint(Sketcher.Constraint("Coincident", 1, 2, 2, 1))
sketch13.addConstraint(Sketcher.Constraint("Coincident", 2, 2, 3, 1))
sketch13.addConstraint(Sketcher.Constraint("Coincident", 3, 2, 0, 1))
sketch13.addConstraint(Sketcher.Constraint("Coincident", 4, 2, 5, 1))
sketch13.addConstraint(Sketcher.Constraint("Coincident", 5, 2, 6, 1))
sketch13.addConstraint(Sketcher.Constraint("Coincident", 6, 2, 7, 1))
sketch13.addConstraint(Sketcher.Constraint("Coincident", 7, 2, 4, 1))
sketch13.addConstraint(Sketcher.Constraint("Vertical", 0))
sketch13.addConstraint(Sketcher.Constraint("Horizontal", 1))
sketch13.addConstraint(Sketcher.Constraint("Vertical", 2))
sketch13.addConstraint(Sketcher.Constraint("Horizontal", 3))
sketch13.addConstraint(Sketcher.Constraint("Vertical", 4))
sketch13.addConstraint(Sketcher.Constraint("Horizontal", 5))
sketch13.addConstraint(Sketcher.Constraint("Vertical", 6))
sketch13.addConstraint(Sketcher.Constraint("Horizontal", 7))
sketch13.addConstraint(Sketcher.Constraint("Vertical", 3, 2, 4, 2))
sketch13.addConstraint(Sketcher.Constraint("Vertical", 2, 2, 5, 2))
sketch13.addConstraint(Sketcher.Constraint("Equal", 7, 0))
sketch13.addConstraint(Sketcher.Constraint("Equal", 2, 4))
sketch13.addConstraint(Sketcher.Constraint("DistanceX", 1, 1, 1, 2, Q("2.5 mm")))
sketch13.addConstraint(Sketcher.Constraint("DistanceX", -1, 1, 0, 2, Q("70.08 mm")))
sketch13.addConstraint(Sketcher.Constraint("DistanceY", 0, 2, -1, 1, Q("38.83 mm")))
sketch13.addConstraint(Sketcher.Constraint("DistanceY", 4, 2, -1, 1, Q("26.22 mm")))
pad9 = body.newObject("PartDesign::Pad", "Pad008")
pad9.Profile = sketch13
pad9.Length = 9
pad9.Reversed = True

doc.recompute()
